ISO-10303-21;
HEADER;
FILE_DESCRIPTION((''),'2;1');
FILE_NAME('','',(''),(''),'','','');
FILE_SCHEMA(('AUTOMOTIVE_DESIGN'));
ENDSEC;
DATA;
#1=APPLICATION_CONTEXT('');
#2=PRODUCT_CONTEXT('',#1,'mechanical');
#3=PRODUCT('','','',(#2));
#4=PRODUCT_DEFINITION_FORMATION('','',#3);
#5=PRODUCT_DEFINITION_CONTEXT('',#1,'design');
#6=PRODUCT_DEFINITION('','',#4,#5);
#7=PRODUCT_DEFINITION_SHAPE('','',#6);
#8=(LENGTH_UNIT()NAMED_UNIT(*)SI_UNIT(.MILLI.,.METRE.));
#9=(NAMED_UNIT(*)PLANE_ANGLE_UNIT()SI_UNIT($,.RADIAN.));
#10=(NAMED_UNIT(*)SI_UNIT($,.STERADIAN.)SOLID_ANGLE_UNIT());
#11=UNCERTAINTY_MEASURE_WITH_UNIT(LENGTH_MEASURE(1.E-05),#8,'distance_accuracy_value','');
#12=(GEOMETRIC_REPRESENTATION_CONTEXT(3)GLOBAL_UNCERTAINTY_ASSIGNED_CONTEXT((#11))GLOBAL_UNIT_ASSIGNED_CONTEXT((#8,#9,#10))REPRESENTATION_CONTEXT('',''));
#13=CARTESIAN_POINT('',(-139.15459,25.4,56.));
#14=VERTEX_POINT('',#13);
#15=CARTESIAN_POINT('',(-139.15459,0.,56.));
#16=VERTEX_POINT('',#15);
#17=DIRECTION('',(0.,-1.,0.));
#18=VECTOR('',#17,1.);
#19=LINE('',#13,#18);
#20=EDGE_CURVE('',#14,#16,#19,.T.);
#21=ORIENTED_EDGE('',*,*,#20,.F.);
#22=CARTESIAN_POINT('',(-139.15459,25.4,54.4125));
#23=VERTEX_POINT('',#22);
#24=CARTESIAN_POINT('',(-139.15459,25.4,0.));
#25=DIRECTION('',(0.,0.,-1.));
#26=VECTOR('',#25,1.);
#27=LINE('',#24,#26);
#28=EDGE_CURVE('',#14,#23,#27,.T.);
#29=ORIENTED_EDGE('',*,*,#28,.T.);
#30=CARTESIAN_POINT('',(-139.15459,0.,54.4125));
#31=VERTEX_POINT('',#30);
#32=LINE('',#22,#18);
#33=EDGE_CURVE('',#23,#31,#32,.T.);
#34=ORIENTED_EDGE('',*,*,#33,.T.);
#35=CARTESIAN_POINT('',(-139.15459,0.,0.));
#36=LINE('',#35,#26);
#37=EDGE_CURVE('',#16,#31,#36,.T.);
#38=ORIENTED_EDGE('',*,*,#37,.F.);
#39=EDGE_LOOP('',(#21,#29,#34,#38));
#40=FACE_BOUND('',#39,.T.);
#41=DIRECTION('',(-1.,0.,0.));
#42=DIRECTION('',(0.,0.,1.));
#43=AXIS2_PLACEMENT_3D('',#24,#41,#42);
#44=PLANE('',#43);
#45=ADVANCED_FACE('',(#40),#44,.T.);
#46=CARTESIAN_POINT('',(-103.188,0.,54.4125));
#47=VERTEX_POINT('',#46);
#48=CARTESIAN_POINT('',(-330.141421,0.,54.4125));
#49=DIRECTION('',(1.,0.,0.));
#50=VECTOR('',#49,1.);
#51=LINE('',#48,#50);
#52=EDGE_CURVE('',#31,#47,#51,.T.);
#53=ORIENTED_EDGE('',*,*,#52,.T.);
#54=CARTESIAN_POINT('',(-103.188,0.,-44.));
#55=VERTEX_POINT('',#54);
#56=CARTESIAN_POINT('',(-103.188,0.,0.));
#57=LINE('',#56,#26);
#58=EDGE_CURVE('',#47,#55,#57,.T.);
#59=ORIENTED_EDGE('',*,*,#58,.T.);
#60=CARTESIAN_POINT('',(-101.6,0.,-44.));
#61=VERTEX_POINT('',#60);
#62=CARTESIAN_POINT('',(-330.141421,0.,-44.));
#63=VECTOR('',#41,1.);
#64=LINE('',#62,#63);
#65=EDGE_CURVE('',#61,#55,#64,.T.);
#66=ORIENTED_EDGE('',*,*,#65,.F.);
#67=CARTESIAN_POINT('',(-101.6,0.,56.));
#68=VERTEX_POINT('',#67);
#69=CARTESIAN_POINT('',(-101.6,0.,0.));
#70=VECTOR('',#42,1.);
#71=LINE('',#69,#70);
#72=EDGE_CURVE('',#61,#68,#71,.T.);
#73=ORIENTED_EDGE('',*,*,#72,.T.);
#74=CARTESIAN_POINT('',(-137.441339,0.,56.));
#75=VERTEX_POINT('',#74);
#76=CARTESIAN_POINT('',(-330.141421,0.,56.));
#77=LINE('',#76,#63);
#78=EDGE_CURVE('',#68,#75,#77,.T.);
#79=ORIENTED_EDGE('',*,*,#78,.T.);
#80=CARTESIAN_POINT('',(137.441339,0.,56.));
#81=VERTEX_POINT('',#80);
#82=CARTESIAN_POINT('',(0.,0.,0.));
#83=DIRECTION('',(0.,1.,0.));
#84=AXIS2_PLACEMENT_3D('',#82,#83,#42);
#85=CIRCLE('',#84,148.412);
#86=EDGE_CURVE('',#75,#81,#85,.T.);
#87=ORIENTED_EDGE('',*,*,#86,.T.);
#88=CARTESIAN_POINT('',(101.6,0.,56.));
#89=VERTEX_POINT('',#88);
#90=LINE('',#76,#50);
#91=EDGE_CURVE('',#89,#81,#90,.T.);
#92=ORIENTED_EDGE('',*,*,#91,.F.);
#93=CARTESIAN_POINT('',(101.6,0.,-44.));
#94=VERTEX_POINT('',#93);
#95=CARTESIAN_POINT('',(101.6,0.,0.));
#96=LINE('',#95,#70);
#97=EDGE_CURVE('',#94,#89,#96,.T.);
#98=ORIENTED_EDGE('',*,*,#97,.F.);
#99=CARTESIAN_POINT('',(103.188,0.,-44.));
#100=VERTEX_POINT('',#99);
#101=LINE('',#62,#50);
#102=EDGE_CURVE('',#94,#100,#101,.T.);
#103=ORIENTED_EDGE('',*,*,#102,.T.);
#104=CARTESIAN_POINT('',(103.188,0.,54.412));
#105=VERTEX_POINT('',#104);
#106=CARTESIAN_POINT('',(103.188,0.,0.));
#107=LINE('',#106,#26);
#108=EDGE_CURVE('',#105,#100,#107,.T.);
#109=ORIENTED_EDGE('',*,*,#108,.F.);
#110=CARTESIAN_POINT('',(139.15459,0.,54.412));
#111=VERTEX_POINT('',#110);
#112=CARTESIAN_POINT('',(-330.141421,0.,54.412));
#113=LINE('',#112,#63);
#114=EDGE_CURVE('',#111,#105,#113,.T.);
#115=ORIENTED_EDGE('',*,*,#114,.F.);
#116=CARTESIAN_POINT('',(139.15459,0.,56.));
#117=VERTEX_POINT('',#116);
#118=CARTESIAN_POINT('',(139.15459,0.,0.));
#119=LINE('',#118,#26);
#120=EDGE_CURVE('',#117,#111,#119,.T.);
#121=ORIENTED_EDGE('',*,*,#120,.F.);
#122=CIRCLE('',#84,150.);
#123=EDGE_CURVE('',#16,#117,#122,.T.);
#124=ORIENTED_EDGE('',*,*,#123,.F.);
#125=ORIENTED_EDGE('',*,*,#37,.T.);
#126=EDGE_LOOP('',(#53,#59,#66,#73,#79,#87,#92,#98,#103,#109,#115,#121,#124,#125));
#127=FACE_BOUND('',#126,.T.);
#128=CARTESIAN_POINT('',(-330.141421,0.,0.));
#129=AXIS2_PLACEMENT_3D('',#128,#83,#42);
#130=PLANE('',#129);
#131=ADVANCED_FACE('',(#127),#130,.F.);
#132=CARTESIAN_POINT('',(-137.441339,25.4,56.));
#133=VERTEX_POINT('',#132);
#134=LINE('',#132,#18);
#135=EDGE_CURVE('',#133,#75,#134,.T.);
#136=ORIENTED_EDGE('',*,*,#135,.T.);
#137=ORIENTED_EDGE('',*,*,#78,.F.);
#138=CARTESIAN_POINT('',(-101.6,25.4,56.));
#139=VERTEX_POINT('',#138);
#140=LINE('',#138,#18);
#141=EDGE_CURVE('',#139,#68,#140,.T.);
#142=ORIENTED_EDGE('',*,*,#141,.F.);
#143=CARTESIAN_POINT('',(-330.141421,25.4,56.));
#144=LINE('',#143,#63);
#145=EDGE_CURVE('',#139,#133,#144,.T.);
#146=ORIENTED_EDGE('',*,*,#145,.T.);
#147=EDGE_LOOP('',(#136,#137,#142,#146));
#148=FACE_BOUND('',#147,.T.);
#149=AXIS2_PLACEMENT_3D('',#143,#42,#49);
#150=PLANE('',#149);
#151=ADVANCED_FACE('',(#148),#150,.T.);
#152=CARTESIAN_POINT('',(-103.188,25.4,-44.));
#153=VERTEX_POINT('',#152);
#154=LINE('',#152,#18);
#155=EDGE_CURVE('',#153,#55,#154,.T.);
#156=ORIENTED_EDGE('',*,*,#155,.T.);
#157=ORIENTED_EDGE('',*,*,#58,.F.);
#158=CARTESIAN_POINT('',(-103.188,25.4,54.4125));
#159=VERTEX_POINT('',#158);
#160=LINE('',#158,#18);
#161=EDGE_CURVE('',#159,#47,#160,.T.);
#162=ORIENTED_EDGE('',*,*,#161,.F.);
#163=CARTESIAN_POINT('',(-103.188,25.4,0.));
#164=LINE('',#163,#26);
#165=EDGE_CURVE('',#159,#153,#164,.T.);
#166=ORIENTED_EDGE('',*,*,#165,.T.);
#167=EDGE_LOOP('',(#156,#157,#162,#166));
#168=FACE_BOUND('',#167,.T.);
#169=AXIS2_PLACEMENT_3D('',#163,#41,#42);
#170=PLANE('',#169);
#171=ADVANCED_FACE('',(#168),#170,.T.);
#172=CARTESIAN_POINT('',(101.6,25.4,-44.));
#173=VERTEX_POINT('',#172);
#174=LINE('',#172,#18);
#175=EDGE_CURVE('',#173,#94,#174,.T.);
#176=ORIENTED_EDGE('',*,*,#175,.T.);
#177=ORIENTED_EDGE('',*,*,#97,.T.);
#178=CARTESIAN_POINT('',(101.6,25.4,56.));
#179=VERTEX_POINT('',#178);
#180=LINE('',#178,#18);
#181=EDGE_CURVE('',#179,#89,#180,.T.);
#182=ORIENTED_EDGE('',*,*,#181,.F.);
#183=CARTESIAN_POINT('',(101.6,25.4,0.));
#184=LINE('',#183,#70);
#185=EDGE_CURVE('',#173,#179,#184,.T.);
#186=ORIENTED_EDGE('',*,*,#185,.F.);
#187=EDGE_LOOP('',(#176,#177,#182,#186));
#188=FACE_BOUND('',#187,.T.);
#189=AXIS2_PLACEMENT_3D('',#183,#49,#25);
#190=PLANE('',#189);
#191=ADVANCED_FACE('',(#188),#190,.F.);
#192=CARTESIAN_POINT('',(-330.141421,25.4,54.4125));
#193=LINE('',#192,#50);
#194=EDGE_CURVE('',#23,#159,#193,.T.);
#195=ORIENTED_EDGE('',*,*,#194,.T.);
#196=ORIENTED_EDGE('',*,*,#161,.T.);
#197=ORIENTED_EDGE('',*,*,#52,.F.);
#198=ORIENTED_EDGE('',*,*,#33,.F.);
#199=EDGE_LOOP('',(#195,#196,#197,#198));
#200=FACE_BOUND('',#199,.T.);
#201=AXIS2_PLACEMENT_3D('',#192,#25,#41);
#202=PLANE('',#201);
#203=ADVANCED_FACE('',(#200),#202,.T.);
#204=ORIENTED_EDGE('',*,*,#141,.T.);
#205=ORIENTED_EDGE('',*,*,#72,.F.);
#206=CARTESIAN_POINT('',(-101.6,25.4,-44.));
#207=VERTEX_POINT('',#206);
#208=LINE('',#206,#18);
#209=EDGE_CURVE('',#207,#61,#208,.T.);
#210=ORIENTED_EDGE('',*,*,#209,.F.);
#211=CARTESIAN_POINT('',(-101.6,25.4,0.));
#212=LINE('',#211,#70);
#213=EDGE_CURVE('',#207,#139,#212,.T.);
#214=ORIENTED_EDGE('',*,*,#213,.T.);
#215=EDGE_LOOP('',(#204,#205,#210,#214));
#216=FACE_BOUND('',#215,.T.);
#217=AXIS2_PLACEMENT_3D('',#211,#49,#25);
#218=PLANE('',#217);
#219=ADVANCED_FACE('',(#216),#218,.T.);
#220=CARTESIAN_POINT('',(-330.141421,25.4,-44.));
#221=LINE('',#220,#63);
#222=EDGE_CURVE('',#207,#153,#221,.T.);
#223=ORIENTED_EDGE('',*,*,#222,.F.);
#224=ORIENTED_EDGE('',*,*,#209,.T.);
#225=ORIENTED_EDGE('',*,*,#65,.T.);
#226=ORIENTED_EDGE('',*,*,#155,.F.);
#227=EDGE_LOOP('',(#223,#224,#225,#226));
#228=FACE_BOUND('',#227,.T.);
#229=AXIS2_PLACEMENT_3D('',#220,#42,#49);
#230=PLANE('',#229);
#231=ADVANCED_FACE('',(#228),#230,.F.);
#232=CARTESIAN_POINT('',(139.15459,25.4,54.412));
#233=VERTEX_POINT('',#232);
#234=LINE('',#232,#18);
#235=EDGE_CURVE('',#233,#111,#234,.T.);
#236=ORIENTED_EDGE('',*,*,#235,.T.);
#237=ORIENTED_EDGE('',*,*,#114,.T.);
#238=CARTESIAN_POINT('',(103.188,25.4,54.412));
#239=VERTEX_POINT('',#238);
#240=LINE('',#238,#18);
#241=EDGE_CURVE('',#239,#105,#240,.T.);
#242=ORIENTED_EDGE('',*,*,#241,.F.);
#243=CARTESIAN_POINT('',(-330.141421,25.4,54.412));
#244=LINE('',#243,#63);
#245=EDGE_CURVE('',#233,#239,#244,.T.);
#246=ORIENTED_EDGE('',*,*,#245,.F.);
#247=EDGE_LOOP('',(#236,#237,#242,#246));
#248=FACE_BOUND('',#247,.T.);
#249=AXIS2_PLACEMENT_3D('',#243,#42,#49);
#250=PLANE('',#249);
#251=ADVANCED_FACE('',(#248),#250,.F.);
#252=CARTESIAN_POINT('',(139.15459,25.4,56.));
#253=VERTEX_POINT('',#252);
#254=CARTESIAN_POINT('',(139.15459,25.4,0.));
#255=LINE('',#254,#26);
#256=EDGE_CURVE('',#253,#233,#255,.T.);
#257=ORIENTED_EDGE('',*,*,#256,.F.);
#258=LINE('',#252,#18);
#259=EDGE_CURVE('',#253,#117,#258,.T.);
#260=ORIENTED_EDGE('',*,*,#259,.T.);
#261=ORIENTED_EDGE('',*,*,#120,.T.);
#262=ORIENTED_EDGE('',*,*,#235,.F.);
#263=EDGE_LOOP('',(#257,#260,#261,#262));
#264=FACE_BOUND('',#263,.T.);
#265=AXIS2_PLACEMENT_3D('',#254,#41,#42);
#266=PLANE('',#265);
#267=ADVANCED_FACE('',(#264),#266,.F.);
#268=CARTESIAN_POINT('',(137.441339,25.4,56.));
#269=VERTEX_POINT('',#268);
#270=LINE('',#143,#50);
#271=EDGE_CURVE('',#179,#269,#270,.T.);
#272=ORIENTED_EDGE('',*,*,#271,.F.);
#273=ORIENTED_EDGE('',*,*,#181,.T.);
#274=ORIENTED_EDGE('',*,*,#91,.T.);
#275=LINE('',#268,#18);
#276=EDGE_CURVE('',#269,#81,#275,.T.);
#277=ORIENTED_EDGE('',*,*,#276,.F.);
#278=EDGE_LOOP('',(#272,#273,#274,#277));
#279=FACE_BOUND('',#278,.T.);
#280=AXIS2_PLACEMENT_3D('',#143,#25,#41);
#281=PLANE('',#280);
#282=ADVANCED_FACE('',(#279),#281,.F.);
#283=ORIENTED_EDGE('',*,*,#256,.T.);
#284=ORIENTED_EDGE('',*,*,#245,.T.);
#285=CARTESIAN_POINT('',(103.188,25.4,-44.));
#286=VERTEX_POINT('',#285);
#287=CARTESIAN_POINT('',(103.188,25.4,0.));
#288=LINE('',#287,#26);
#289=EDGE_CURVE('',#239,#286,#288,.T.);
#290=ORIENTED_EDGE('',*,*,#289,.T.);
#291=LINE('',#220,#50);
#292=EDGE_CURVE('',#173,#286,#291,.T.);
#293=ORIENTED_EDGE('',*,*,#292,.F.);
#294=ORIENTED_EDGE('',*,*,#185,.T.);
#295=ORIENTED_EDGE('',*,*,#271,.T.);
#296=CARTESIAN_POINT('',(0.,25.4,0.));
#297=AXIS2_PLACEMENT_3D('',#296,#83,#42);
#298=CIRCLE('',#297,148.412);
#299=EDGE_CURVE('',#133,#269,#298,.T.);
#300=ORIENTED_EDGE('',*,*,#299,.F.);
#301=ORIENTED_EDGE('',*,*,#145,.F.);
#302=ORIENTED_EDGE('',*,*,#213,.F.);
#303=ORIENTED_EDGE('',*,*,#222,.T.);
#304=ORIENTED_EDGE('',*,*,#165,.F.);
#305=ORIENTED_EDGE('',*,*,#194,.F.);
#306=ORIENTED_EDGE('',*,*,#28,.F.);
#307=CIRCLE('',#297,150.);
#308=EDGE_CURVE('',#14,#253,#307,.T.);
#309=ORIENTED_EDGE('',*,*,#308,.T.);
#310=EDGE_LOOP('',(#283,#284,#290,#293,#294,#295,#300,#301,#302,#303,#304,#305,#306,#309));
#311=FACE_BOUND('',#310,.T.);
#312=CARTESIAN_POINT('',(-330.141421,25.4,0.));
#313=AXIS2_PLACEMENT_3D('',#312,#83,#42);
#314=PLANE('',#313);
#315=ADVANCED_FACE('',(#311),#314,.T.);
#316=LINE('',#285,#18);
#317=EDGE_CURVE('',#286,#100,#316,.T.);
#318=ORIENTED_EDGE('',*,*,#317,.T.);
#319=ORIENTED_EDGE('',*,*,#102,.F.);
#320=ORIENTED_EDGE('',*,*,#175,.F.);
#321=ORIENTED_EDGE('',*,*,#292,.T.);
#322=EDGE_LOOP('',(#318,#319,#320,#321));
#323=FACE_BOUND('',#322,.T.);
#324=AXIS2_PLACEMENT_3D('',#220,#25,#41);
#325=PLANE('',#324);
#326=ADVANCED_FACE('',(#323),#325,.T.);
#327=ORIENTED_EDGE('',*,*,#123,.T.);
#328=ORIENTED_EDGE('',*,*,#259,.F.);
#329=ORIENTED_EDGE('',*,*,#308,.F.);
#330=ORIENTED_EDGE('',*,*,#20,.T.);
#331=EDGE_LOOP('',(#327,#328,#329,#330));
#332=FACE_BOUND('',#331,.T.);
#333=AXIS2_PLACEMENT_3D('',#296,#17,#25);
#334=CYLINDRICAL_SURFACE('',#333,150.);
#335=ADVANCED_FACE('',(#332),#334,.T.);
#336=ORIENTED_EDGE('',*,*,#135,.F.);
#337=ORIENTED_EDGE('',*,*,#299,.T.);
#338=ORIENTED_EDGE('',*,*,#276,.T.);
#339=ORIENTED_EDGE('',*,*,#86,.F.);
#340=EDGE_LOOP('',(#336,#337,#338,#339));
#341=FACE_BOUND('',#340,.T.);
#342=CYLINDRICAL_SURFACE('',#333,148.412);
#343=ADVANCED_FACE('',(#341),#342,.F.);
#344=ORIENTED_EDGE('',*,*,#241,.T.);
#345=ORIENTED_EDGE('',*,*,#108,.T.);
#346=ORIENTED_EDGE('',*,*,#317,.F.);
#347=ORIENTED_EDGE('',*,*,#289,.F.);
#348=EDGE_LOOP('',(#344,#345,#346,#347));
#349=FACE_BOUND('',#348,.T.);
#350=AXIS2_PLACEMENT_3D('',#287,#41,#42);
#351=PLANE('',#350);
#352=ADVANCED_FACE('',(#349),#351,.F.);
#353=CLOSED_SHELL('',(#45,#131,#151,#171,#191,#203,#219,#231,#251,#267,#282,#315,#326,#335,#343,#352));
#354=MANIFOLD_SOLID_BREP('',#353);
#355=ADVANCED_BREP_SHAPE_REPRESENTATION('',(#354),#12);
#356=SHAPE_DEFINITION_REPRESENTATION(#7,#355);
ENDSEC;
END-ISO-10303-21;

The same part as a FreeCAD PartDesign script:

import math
import FreeCAD as App
import Part
import Sketcher
from FreeCAD import Vector

doc = App.newDocument("Part")
params = doc.addObject("Spreadsheet::Sheet", "Params")
for row, (alias, value) in enumerate([
    ("sketch1_radius", "150 mm"),
    ("sketch1_height", "100 mm"),
    ("pad1_length", "25.4 mm"),
], start=1):
    params.set(f"A{row}", alias)
    params.set(f"B{row}", "=" + value)
    params.setAlias(f"B{row}", alias)

body = doc.addObject("PartDesign::Body", "Body")

# Sketch on XZ plane
sketch1 = doc.addObject("Sketcher::SketchObject", "Sketch")
body.addObject(sketch1)
sketch1.AttachmentSupport = (doc.XZ_Plane, [""])
sketch1.MapMode = "FlatFace"
sketch1.addGeometry([
    Part.ArcOfCircle(Part.Circle(Vector(0, 0, 0), Vector(0, 0, 1), 148.4), math.radians(22), math.radians(158)),  # 0
    Part.LineSegment(Vector(-137.4, 56, 0), Vector(-101.6, 56, 0)),  # 1
    Part.LineSegment(Vector(-101.6, 56, 0), Vector(-101.6, -44, 0)),  # 2
    Part.LineSegment(Vector(-101.6, -44, 0), Vector(-103.2, -44, 0)),  # 3
    Part.LineSegment(Vector(-103.2, -44, 0), Vector(-103.2, 54.4, 0)),  # 4
    Part.LineSegment(Vector(-103.2, 54.4, 0), Vector(-139.2, 54.4, 0)),  # 5
    Part.LineSegment(Vector(-139.2, 54.4, 0), Vector(-139.2, 56, 0)),  # 6
    Part.ArcOfCircle(Part.Circle(Vector(0, 0, 0), Vector(0, 0, 1), 150), math.radians(22), math.radians(158)),  # 7
    Part.LineSegment(Vector(139.2, 56, 0), Vector(139.2, 54.4, 0)),  # 8
    Part.LineSegment(Vector(139.2, 54.4, 0), Vector(103.2, 54.4, 0)),  # 9
    Part.LineSegment(Vector(103.2, 54.4, 0), Vector(103.2, -44, 0)),  # 10
    Part.LineSegment(Vector(103.2, -44, 0), Vector(101.6, -44, 0)),  # 11
    Part.LineSegment(Vector(101.6, -44, 0), Vector(101.6, 56, 0)),  # 12
    Part.LineSegment(Vector(101.6, 56, 0), Vector(137.4, 56, 0)),  # 13
], False)
sketch1.addConstraint([
    Sketcher.Constraint("Coincident", 0, 2, 1, 1),
    Sketcher.Constraint("Coincident", 1, 2, 2, 1),
    Sketcher.Constraint("Coincident", 2, 2, 3, 1),
    Sketcher.Constraint("Coincident", 3, 2, 4, 1),
    Sketcher.Constraint("Coincident", 4, 2, 5, 1),
    Sketcher.Constraint("Coincident", 5, 2, 6, 1),
    Sketcher.Constraint("Coincident", 6, 2, 7, 2),
    Sketcher.Constraint("Coincident", 7, 1, 8, 1),
    Sketcher.Constraint("Coincident", 8, 2, 9, 1),
    Sketcher.Constraint("Coincident", 9, 2, 10, 1),
    Sketcher.Constraint("Coincident", 10, 2, 11, 1),
    Sketcher.Constraint("Coincident", 11, 2, 12, 1),
    Sketcher.Constraint("Coincident", 12, 2, 13, 1),
    Sketcher.Constraint("Coincident", 13, 2, 0, 1),
    Sketcher.Constraint("Horizontal", 1),
    Sketcher.Constraint("Vertical", 2),
    Sketcher.Constraint("Horizontal", 3),
    Sketcher.Constraint("Vertical", 4),
    Sketcher.Constraint("Horizontal", 5),
    Sketcher.Constraint("Vertical", 6),
    Sketcher.Constraint("Vertical", 8),
    Sketcher.Constraint("Horizontal", 9),
    Sketcher.Constraint("Vertical", 10),
    Sketcher.Constraint("Horizontal", 11),
    Sketcher.Constraint("Vertical", 12),
    Sketcher.Constraint("Horizontal", 13),
    Sketcher.Constraint("Coincident", 0, 3, -1, 1),
    Sketcher.Constraint("Coincident", 7, 3, -1, 1),
    Sketcher.Constraint("Symmetric", 3, 2, 10, 2, -2),
    Sketcher.Constraint("Symmetric", 1, 2, 12, 2, -2),
    Sketcher.Constraint("Horizontal", 1, 2, 6, 2),
    Sketcher.Constraint("Horizontal", 6, 2, 7, 1),
    Sketcher.Constraint("Equal", 11, 8),
    Sketcher.Constraint("Radius", 7, 150.0),
    Sketcher.Constraint("DistanceY", 2, 2, 2, 1, 100.0),
    Sketcher.Constraint("DistanceY", -1, 1, 1, 2, 56.0),
    Sketcher.Constraint("Radius", 0, 148.412),
    Sketcher.Constraint("DistanceX", 1, 2, -1, 1, 101.6),
    Sketcher.Constraint("DistanceX", 3, 2, 3, 1, 1.588),
    Sketcher.Constraint("DistanceY", 4, 1, 4, 2, 98.4125),
])
sketch1.setExpression("Constraints[33]", "Params.sketch1_radius")
sketch1.setExpression("Constraints[34]", "Params.sketch1_height")
pad1 = doc.addObject("PartDesign::Pad", "Pad")
body.addObject(pad1)
pad1.Profile = sketch1
pad1.setExpression("Length", "Params.pad1_length")
pad1.Reversed = True

doc.recompute()
